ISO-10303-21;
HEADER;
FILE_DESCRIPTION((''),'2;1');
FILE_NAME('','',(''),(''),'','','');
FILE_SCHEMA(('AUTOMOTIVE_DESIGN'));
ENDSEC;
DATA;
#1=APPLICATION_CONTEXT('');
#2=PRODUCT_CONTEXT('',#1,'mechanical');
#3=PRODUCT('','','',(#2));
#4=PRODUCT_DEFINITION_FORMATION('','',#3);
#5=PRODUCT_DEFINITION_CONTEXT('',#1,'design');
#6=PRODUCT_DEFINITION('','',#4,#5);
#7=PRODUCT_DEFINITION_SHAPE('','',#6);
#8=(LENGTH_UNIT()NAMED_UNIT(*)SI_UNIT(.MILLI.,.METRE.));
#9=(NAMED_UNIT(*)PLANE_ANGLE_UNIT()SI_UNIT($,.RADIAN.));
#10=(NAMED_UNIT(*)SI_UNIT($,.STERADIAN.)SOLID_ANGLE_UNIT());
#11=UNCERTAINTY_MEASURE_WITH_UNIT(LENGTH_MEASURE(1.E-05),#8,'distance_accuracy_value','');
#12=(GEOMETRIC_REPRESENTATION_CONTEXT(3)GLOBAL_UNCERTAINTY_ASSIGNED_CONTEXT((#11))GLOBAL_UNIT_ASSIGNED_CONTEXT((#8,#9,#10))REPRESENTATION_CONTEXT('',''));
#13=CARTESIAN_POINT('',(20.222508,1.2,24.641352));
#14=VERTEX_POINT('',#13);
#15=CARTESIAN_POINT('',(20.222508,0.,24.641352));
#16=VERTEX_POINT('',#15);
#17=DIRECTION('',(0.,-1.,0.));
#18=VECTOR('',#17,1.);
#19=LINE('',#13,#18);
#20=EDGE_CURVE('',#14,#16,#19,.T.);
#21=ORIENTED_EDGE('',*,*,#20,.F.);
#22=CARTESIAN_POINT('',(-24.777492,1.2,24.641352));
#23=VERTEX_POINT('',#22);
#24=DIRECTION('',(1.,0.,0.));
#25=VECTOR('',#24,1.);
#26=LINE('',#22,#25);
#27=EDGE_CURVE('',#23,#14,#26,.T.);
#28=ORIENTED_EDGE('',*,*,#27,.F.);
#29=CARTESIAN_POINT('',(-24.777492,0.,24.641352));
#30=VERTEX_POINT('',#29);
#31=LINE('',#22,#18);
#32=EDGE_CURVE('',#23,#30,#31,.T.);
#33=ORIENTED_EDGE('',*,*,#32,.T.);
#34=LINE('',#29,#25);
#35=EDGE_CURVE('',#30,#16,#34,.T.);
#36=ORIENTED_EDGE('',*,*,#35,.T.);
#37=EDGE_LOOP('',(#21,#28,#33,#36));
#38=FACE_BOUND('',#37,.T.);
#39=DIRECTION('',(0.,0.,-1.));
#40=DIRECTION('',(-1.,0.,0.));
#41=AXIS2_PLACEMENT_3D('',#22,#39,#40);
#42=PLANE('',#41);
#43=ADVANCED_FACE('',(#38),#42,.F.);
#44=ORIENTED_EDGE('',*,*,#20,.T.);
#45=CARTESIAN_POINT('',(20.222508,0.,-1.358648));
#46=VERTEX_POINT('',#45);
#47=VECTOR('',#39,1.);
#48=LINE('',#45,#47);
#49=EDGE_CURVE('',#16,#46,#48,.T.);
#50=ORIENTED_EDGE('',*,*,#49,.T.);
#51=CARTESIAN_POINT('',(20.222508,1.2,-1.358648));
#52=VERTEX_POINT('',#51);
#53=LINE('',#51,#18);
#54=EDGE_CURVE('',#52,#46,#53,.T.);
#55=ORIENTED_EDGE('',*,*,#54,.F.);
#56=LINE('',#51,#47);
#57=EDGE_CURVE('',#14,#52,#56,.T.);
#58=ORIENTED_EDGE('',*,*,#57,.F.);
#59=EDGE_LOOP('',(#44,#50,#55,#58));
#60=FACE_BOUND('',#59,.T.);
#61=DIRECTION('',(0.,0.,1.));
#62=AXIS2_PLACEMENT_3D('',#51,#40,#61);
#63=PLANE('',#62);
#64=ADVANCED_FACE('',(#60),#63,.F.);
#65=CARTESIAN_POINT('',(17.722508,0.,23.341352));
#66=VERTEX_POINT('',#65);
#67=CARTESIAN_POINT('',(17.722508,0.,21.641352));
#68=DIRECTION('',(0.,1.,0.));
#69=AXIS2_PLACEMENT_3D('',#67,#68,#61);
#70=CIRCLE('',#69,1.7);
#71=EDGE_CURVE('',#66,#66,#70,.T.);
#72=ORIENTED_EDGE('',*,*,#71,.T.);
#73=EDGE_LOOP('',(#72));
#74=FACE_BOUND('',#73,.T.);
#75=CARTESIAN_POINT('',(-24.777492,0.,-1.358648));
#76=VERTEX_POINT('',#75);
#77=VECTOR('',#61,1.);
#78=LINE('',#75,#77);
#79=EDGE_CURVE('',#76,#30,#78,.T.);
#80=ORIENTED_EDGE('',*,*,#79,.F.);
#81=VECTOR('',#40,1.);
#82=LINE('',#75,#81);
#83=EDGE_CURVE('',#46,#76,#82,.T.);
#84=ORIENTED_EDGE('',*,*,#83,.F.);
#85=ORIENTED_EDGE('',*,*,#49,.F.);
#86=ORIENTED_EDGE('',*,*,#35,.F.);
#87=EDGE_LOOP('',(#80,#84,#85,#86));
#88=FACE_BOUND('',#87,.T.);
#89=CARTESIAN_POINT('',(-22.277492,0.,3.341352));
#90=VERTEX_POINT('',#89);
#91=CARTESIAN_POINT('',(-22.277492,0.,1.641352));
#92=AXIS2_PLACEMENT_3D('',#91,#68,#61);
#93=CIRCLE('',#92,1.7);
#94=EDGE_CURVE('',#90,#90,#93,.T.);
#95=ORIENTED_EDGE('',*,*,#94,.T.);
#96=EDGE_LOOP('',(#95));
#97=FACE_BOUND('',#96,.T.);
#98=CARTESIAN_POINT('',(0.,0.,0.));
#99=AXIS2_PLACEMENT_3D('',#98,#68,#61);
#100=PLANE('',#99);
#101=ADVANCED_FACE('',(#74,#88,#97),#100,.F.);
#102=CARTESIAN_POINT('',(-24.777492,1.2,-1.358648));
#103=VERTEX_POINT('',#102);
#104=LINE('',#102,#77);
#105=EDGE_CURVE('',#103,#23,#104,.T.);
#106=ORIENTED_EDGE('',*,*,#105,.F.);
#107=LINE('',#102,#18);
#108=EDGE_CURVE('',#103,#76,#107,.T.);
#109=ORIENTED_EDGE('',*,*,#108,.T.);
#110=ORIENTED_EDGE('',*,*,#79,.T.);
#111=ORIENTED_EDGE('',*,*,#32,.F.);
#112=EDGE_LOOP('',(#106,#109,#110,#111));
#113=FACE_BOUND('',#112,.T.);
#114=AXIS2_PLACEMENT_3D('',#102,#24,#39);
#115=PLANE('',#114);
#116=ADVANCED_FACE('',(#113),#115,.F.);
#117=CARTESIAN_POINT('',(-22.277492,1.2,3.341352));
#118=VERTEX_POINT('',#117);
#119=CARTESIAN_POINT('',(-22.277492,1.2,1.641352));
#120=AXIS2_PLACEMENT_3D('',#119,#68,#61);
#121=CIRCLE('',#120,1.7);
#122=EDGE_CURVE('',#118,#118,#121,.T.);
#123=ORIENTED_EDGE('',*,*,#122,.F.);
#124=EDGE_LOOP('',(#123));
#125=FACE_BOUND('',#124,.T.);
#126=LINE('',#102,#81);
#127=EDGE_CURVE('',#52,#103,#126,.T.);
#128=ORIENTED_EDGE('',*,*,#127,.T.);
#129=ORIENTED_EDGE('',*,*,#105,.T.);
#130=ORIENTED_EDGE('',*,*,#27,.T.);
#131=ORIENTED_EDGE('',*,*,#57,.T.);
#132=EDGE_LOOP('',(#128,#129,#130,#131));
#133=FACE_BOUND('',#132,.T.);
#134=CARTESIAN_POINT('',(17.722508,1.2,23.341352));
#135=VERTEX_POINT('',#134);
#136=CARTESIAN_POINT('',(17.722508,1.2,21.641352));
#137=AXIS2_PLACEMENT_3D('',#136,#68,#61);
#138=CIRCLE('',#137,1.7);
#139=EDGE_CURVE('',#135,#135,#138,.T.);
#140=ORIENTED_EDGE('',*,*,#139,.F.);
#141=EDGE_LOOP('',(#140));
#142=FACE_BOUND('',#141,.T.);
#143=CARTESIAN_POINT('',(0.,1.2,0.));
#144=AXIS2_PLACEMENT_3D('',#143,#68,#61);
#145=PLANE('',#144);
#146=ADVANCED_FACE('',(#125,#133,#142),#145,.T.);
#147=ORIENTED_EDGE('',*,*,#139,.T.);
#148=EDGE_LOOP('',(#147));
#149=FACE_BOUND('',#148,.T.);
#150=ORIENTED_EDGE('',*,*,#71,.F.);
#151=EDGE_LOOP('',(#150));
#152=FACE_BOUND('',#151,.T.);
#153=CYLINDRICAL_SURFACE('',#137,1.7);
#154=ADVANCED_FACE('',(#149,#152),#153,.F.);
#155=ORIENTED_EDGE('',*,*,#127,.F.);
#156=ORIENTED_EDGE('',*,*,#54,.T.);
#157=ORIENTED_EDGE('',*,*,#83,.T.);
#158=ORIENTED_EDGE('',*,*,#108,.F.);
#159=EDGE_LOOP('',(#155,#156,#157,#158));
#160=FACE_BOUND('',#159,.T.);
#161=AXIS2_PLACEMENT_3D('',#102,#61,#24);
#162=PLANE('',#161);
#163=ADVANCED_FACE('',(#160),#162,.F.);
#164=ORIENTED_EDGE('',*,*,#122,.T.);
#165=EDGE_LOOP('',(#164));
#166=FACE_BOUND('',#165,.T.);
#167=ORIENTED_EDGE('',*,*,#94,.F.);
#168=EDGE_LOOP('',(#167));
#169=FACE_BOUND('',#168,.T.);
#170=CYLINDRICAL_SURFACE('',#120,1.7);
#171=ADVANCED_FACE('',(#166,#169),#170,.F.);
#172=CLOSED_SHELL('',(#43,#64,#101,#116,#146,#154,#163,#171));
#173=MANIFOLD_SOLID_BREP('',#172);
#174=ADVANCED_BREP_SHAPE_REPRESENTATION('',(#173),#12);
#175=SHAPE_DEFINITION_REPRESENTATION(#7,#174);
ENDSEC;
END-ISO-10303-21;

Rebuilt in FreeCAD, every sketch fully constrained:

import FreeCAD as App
import Part
import Sketcher
from FreeCAD import Vector

doc = App.newDocument("Part")
body = doc.addObject("PartDesign::Body", "Body")

# Sketch on XZ plane
sketch1 = body.newObject("Sketcher::SketchObject", "Sketch")
sketch1.AttachmentSupport = (doc.getObject("XZ_Plane"), [""])
sketch1.MapMode = "FlatFace"
sketch1.addGeometry(Part.LineSegment(Vector(-25, -1, 0), Vector(-25, 25, 0)), False)
sketch1.addGeometry(Part.LineSegment(Vector(-25, 25, 0), Vector(20, 25, 0)), False)
sketch1.addGeometry(Part.LineSegment(Vector(20, 25, 0), Vector(20, -1, 0)), False)
sketch1.addGeometry(Part.LineSegment(Vector(20, -1, 0), Vector(-25, -1, 0)), False)
sketch1.addConstraint(Sketcher.Constraint("Coincident", 0, 2, 1, 1))
sketch1.addConstraint(Sketcher.Constraint("Coincident", 1, 2, 2, 1))
sketch1.addConstraint(Sketcher.Constraint("Coincident", 2, 2, 3, 1))
sketch1.addConstraint(Sketcher.Constraint("Coincident", 3, 2, 0, 1))
sketch1.addConstraint(Sketcher.Constraint("Vertical", 0))
sketch1.addConstraint(Sketcher.Constraint("Horizontal", 1))
sketch1.addConstraint(Sketcher.Constraint("Vertical", 2))
sketch1.addConstraint(Sketcher.Constraint("Horizontal", 3))
sketch1.addConstraint(Sketcher.Constraint("DistanceX", 1, 1, 1, 2, 45.0))
sketch1.addConstraint(Sketcher.Constraint("DistanceY", 0, 1, 0, 2, 26.0))
sketch1.addConstraint(Sketcher.Constraint("DistanceX", 0, 2, -1, 1, 24.777492))
sketch1.addConstraint(Sketcher.Constraint("DistanceY", -1, 1, 0, 2, 24.641352))
pad1 = body.newObject("PartDesign::Pad", "Pad")
pad1.Profile = sketch1
pad1.Length = 1.2
pad1.Reversed = True

# Sketch on XZ plane
sketch2 = body.newObject("Sketcher::SketchObject", "Sketch001")
sketch2.AttachmentSupport = (doc.getObject("XZ_Plane"), [""])
sketch2.MapMode = "FlatFace"
sketch2.AttachmentOffset = App.Placement(Vector(0, 0, -1.2), App.Rotation())
sketch2.addGeometry(Part.Circle(Vector(-22.3, 1.6, 0), Vector(0, 0, 1), 1.7), False)
sketch2.addGeometry(Part.Circle(Vector(17.7, 21.6, 0), Vector(0, 0, 1), 1.7), False)
sketch2.addConstraint(Sketcher.Constraint("Equal", 0, 1))
sketch2.addConstraint(Sketcher.Constraint("Diameter", 0, 3.4))
sketch2.addConstraint(Sketcher.Constraint("DistanceX", 0, 3, 1, 3, 40.0))
sketch2.addConstraint(Sketcher.Constraint("DistanceY", 0, 3, 1, 3, 20.0))
sketch2.addConstraint(Sketcher.Constraint("DistanceX", 0, 3, -1, 1, 22.277492))
sketch2.addConstraint(Sketcher.Constraint("DistanceY", -1, 1, 0, 3, 1.641352))
doc.recompute()
hole = body.newObject("PartDesign::Hole", "Hole")
hole.Profile = sketch2
hole.ThreadType = "None"
hole.Diameter = 3.4
hole.DepthType = "ThroughAll"
hole.Reversed = True

doc.recompute()
